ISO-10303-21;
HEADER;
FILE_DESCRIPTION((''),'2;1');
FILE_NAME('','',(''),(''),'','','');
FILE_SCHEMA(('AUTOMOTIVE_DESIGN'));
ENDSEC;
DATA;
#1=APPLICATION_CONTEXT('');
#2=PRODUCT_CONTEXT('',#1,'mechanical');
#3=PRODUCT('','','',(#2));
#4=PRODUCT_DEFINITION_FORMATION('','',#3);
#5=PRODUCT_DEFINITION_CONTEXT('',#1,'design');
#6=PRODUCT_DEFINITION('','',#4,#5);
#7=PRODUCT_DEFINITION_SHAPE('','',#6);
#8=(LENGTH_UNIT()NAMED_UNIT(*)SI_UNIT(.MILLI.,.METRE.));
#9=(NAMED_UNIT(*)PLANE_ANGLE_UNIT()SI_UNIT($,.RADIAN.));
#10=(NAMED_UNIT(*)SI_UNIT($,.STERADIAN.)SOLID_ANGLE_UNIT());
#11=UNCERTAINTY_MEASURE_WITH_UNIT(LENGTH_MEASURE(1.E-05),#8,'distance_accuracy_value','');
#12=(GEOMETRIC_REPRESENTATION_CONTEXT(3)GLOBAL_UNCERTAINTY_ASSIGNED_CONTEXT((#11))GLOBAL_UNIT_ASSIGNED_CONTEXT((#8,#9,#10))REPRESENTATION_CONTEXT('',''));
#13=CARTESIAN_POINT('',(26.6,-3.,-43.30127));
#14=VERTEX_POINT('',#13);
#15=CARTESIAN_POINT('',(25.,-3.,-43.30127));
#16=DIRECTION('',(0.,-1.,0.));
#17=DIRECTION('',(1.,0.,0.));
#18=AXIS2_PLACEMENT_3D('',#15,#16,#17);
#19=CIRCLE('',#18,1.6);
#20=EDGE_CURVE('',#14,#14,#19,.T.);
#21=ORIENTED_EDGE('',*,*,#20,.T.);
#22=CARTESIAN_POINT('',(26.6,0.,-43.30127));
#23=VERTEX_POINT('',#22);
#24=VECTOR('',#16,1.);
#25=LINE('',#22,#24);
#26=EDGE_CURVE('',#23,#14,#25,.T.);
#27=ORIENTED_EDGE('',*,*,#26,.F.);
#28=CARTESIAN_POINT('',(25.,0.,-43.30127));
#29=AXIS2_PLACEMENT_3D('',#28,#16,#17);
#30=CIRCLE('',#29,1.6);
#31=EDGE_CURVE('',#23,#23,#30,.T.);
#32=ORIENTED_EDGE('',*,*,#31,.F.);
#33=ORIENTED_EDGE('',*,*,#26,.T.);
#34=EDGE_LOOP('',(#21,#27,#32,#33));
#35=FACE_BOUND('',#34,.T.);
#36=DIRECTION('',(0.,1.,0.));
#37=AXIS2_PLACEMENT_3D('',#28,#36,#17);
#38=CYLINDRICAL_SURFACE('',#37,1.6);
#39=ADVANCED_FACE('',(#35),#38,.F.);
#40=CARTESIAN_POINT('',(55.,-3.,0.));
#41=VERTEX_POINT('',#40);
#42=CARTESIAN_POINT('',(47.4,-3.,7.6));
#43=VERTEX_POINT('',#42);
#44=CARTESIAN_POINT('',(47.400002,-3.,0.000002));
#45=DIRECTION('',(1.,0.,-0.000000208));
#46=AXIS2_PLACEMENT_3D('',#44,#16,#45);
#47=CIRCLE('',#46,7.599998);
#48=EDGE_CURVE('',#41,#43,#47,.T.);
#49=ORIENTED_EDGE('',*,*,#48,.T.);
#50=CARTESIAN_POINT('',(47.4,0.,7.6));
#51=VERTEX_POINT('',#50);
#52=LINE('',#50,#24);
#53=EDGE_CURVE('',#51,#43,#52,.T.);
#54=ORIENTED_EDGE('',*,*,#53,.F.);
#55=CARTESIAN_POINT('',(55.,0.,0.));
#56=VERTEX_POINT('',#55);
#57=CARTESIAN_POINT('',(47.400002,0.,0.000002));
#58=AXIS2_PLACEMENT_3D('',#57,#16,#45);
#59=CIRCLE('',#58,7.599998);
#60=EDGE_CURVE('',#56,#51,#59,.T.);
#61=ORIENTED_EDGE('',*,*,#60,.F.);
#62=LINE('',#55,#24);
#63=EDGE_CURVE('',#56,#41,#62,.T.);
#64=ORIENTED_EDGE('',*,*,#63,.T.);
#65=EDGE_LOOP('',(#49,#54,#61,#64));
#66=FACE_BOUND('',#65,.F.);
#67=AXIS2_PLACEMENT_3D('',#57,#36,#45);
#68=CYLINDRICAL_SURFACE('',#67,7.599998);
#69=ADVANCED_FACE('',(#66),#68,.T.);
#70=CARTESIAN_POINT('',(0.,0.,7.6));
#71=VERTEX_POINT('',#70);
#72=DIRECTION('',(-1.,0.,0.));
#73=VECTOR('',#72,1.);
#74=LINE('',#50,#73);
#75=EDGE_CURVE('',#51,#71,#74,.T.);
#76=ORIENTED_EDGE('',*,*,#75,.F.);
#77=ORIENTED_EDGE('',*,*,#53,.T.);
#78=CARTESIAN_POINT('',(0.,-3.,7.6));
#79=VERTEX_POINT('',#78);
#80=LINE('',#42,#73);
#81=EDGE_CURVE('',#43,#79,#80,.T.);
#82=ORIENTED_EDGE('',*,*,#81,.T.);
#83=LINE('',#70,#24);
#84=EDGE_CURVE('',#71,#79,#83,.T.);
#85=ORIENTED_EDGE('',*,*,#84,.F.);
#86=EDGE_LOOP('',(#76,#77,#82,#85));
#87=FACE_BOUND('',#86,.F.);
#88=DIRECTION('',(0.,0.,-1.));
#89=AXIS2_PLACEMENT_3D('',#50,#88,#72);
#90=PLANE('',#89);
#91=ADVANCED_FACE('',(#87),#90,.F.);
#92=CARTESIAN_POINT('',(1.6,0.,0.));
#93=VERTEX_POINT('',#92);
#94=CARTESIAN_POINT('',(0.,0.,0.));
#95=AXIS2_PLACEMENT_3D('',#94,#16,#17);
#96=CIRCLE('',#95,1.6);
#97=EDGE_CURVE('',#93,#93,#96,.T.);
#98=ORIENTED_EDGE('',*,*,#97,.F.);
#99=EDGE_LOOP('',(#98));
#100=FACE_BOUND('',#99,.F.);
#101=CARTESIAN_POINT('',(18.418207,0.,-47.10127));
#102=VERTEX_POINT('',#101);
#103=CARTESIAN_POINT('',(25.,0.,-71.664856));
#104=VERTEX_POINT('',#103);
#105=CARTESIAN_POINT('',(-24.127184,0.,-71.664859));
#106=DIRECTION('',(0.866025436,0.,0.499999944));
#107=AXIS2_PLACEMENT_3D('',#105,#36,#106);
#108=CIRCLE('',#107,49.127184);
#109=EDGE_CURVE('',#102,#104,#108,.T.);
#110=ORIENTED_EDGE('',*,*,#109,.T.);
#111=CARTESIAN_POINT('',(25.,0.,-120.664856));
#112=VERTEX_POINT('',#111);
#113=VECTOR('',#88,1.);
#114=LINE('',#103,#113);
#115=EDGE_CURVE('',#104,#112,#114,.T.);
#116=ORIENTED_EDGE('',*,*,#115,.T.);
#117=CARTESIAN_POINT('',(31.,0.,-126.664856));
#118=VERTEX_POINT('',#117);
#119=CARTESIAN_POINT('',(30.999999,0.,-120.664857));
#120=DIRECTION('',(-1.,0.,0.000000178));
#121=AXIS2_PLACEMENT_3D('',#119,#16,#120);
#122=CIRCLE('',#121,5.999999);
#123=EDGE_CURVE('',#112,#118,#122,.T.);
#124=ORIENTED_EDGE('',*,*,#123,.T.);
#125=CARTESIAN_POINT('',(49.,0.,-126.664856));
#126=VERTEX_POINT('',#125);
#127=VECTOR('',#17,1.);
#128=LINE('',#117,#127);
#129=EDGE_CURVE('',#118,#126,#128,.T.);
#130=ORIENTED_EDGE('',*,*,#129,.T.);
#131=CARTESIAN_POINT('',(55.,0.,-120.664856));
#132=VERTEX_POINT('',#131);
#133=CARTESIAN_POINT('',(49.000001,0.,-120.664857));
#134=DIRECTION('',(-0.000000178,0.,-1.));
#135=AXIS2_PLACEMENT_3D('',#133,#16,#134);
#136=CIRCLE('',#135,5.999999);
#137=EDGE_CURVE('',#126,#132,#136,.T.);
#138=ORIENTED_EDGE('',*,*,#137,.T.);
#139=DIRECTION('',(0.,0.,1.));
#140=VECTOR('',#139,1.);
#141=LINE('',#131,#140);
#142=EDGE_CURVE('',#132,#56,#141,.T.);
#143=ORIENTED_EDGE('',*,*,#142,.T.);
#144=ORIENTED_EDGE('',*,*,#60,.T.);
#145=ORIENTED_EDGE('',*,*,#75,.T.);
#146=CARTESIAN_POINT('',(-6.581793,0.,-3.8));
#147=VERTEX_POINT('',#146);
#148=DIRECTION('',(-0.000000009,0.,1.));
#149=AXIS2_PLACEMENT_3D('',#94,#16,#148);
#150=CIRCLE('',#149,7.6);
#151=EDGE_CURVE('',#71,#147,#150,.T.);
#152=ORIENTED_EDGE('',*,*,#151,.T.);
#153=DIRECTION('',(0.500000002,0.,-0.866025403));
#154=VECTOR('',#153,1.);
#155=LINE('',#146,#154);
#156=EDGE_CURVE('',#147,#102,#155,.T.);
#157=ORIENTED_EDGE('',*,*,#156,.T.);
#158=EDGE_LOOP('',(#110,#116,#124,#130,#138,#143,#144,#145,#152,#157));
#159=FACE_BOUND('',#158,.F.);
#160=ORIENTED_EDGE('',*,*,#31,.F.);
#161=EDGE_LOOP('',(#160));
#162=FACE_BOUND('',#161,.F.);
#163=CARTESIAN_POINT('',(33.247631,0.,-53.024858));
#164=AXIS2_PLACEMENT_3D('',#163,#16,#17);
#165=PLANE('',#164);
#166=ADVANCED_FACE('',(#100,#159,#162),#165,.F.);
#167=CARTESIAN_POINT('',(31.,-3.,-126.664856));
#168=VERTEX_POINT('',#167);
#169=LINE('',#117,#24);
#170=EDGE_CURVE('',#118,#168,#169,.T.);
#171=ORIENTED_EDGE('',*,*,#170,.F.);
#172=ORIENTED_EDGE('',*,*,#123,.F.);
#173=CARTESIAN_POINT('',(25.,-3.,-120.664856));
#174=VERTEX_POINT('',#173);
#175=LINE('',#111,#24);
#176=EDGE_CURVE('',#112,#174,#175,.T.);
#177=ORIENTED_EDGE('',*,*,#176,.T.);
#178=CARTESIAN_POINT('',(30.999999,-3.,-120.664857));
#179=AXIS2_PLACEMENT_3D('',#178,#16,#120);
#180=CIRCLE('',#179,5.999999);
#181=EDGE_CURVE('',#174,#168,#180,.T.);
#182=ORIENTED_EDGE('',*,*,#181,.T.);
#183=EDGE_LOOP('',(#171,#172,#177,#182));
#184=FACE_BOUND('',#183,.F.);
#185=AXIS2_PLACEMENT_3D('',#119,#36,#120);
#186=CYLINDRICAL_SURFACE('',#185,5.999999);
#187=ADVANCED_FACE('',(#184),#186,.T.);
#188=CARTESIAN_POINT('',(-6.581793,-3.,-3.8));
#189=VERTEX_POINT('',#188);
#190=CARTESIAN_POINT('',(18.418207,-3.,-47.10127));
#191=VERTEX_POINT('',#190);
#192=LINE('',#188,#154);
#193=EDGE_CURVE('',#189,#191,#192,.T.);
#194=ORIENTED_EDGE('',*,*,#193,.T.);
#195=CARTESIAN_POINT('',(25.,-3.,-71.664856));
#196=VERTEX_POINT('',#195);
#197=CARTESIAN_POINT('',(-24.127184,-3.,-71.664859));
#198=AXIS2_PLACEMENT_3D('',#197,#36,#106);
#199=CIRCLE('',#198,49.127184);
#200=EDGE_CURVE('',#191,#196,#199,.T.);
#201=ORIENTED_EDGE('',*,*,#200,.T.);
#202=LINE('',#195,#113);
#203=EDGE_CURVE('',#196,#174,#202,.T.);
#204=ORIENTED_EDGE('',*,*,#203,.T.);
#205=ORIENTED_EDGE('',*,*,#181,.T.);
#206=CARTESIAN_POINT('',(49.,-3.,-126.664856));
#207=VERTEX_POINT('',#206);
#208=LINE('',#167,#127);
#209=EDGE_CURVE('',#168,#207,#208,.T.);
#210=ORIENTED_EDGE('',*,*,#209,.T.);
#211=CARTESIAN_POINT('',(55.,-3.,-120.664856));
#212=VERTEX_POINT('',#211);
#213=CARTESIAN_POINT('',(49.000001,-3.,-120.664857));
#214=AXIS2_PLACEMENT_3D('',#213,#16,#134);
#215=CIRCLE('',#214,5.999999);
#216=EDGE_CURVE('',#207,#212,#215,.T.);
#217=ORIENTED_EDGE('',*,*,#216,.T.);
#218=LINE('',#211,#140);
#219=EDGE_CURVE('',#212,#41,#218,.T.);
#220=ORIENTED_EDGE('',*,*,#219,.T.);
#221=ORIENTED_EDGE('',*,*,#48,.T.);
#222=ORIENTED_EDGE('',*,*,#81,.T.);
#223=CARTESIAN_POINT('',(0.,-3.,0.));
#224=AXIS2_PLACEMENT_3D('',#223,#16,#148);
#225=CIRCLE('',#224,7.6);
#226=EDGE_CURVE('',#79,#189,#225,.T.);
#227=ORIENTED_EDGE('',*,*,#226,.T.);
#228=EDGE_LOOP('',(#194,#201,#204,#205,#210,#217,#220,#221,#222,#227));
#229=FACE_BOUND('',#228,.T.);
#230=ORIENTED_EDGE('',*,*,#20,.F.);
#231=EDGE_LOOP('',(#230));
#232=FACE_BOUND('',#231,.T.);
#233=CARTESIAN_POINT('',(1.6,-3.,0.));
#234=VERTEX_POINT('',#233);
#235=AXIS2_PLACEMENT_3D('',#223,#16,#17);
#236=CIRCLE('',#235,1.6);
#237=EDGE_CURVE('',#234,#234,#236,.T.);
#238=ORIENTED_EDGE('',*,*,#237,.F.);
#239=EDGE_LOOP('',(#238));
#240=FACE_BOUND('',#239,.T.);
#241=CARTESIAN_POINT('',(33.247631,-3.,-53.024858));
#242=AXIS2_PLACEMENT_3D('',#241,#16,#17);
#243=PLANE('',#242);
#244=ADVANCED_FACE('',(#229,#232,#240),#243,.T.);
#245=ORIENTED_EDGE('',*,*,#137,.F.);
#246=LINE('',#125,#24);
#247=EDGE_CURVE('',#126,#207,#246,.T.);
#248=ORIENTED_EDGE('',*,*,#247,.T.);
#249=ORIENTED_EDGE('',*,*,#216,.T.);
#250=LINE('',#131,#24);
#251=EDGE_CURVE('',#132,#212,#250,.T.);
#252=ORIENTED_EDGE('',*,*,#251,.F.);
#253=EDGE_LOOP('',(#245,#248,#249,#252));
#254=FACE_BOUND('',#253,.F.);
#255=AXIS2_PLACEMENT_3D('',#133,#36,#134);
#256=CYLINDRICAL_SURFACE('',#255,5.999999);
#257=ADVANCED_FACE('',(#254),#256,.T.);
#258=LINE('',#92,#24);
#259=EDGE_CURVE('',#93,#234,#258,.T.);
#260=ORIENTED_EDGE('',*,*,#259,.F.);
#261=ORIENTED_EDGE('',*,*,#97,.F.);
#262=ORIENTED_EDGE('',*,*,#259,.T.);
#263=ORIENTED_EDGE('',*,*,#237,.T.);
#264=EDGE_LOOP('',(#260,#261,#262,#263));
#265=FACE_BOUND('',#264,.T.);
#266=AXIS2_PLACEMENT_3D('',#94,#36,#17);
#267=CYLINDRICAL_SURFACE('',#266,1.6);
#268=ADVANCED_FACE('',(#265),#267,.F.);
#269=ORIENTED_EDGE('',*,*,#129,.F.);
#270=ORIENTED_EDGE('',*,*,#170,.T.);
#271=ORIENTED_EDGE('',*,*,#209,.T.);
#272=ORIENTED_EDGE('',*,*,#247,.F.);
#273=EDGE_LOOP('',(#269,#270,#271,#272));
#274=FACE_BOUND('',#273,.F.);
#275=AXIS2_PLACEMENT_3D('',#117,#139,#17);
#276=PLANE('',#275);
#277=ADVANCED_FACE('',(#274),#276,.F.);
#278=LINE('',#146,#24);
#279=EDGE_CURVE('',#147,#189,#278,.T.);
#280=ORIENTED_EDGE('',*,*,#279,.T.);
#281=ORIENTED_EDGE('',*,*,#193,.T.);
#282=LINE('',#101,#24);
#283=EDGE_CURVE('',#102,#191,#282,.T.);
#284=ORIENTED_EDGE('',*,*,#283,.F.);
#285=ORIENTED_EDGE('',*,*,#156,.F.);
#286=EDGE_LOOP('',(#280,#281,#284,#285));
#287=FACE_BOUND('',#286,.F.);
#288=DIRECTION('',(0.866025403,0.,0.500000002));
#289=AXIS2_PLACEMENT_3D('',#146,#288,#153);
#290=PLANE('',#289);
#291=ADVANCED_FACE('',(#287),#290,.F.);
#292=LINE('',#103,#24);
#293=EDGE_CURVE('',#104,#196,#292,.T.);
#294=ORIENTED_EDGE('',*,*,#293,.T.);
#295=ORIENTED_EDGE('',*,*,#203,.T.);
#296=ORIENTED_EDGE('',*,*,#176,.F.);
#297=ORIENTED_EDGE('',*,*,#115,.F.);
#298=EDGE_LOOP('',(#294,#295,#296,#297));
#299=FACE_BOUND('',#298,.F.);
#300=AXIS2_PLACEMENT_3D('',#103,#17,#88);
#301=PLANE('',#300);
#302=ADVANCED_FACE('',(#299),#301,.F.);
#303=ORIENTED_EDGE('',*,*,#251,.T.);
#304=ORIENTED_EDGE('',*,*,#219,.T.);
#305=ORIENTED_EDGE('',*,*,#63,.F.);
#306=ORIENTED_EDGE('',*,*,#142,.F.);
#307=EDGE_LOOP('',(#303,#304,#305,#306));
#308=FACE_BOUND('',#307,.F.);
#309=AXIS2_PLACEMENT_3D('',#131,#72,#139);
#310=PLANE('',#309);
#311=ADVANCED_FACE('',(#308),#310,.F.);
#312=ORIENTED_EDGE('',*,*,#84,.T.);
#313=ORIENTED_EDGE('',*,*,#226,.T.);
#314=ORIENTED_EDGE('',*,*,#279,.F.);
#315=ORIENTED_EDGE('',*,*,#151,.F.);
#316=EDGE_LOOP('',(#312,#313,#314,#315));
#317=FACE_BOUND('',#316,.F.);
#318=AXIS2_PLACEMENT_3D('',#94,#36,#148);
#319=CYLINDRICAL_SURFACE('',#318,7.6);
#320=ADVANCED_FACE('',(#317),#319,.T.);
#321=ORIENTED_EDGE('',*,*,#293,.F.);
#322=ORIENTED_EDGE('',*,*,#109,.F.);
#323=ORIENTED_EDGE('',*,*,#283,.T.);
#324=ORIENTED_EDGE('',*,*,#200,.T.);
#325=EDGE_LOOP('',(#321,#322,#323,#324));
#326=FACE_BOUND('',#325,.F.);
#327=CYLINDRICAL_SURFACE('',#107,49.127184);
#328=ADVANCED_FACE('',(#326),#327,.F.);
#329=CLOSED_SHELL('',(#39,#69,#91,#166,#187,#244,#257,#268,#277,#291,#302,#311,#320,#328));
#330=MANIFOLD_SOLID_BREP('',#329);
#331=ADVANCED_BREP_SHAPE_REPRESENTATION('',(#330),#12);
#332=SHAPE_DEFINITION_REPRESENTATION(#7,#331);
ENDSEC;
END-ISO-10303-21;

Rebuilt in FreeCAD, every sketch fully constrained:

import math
import FreeCAD as App
import Part
import Sketcher
Q = App.Units.Quantity

doc = App.newDocument("Part")
params = doc.addObject("Spreadsheet::Sheet", "Params")
for row, (alias, value) in enumerate([
    ("sketch1_radius", "5.999999 mm"),
    ("sketch1_diameter", "3.2 mm"),
    ("sketch1_radius2", "7.6 mm"),
    ("sketch1_width", "18 mm"),
    ("sketch1_height", "49 mm"),
    ("pad1_length", "3 mm"),
], start=1):
    params.set(f"A{row}", alias)
    params.set(f"B{row}", "=" + value)
    params.setAlias(f"B{row}", alias)

body = doc.addObject("PartDesign::Body", "Body")

sketch1 = doc.addObject("Sketcher::SketchObject", "Sketch")
body.addObject(sketch1)
sketch1.AttachmentSupport = (doc.XZ_Plane, [""])
sketch1.MapMode = "FlatFace"
sketch1.addGeometry([
    Part.LineSegment(App.Vector(47.4, 7.6, 0), App.Vector(0, 7.6, 0)),
    Part.ArcOfCircle(Part.Circle(App.Vector(0, 0, 0), App.Vector(0, 0, 1), 7.6), math.radians(90), math.radians(210)),
    Part.LineSegment(App.Vector(-6.6, -3.8, 0), App.Vector(18.4, -47.1, 0)),
    Part.ArcOfCircle(Part.Circle(App.Vector(-24.1, -71.7, 0), App.Vector(0, 0, 1), 49.1), math.radians(0), math.radians(30)),
    Part.LineSegment(App.Vector(25, -71.7, 0), App.Vector(25, -120.7, 0)),
    Part.ArcOfCircle(Part.Circle(App.Vector(31, -120.7, 0), App.Vector(0, 0, 1), 6), math.radians(180), math.radians(270)),
    Part.LineSegment(App.Vector(31, -126.7, 0), App.Vector(49, -126.7, 0)),
    Part.ArcOfCircle(Part.Circle(App.Vector(49, -120.7, 0), App.Vector(0, 0, 1), 6), math.radians(-90), math.radians(0)),
    Part.LineSegment(App.Vector(55, -120.7, 0), App.Vector(55, 0, 0)),
    Part.ArcOfCircle(Part.Circle(App.Vector(47.4, 0, 0), App.Vector(0, 0, 1), 7.6), math.radians(0), math.radians(90)),
    Part.Circle(App.Vector(25, -43.3, 0), App.Vector(0, 0, 1), 1.6),
    Part.Circle(App.Vector(0, 0, 0), App.Vector(0, 0, 1), 1.6),
], False)
sketch1.addConstraint([
    Sketcher.Constraint("Tangent", 0, 2, 1, 1),
    Sketcher.Constraint("Tangent", 1, 2, 2, 1),
    Sketcher.Constraint("Tangent", 2, 2, 3, 2),
    Sketcher.Constraint("Tangent", 3, 1, 4, 1),
    Sketcher.Constraint("Tangent", 4, 2, 5, 1),
    Sketcher.Constraint("Tangent", 5, 2, 6, 1),
    Sketcher.Constraint("Tangent", 6, 2, 7, 1),
    Sketcher.Constraint("Tangent", 7, 2, 8, 1),
    Sketcher.Constraint("Tangent", 8, 2, 9, 1),
    Sketcher.Constraint("Tangent", 9, 2, 0, 1),
    Sketcher.Constraint("Horizontal", 0),
    Sketcher.Constraint("Vertical", 4),
    Sketcher.Constraint("Horizontal", 6),
    Sketcher.Constraint("Vertical", 8),
    Sketcher.Constraint("Coincident", 1, 3, -1, 1),
    Sketcher.Constraint("Coincident", 11, 3, -1, 1),
    Sketcher.Constraint("Equal", 5, 7),
    Sketcher.Constraint("Equal", 1, 9),
    Sketcher.Constraint("Equal", 10, 11),
    Sketcher.Constraint("Vertical", 10, 3, 3, 1),
    Sketcher.Constraint("Radius", 5, Q("5.999999 mm")),
    Sketcher.Constraint("Diameter", 10, Q("3.2 mm")),
    Sketcher.Constraint("Radius", 1, Q("7.6 mm")),
    Sketcher.Constraint("DistanceX", 6, 1, 6, 2, Q("18 mm")),
    Sketcher.Constraint("DistanceY", 4, 2, 4, 1, Q("49 mm")),
    Sketcher.Constraint("Angle", 2, Q("-60 deg")),
    Sketcher.Constraint("Distance", 2, Q("50 mm")),
    Sketcher.Constraint("DistanceX", 0, 2, 0, 1, Q("47.4 mm")),
    Sketcher.Constraint("DistanceY", 2, 2, 10, 3, Q("3.8 mm")),
])
sketch1.setExpression("Constraints[20]", "Params.sketch1_radius")
sketch1.setExpression("Constraints[21]", "Params.sketch1_diameter")
sketch1.setExpression("Constraints[22]", "Params.sketch1_radius2")
sketch1.setExpression("Constraints[23]", "Params.sketch1_width")
sketch1.setExpression("Constraints[24]", "Params.sketch1_height")
pad1 = doc.addObject("PartDesign::Pad", "Pad")
body.addObject(pad1)
pad1.Profile = sketch1
pad1.setExpression("Length", "Params.pad1_length")

doc.recompute()
